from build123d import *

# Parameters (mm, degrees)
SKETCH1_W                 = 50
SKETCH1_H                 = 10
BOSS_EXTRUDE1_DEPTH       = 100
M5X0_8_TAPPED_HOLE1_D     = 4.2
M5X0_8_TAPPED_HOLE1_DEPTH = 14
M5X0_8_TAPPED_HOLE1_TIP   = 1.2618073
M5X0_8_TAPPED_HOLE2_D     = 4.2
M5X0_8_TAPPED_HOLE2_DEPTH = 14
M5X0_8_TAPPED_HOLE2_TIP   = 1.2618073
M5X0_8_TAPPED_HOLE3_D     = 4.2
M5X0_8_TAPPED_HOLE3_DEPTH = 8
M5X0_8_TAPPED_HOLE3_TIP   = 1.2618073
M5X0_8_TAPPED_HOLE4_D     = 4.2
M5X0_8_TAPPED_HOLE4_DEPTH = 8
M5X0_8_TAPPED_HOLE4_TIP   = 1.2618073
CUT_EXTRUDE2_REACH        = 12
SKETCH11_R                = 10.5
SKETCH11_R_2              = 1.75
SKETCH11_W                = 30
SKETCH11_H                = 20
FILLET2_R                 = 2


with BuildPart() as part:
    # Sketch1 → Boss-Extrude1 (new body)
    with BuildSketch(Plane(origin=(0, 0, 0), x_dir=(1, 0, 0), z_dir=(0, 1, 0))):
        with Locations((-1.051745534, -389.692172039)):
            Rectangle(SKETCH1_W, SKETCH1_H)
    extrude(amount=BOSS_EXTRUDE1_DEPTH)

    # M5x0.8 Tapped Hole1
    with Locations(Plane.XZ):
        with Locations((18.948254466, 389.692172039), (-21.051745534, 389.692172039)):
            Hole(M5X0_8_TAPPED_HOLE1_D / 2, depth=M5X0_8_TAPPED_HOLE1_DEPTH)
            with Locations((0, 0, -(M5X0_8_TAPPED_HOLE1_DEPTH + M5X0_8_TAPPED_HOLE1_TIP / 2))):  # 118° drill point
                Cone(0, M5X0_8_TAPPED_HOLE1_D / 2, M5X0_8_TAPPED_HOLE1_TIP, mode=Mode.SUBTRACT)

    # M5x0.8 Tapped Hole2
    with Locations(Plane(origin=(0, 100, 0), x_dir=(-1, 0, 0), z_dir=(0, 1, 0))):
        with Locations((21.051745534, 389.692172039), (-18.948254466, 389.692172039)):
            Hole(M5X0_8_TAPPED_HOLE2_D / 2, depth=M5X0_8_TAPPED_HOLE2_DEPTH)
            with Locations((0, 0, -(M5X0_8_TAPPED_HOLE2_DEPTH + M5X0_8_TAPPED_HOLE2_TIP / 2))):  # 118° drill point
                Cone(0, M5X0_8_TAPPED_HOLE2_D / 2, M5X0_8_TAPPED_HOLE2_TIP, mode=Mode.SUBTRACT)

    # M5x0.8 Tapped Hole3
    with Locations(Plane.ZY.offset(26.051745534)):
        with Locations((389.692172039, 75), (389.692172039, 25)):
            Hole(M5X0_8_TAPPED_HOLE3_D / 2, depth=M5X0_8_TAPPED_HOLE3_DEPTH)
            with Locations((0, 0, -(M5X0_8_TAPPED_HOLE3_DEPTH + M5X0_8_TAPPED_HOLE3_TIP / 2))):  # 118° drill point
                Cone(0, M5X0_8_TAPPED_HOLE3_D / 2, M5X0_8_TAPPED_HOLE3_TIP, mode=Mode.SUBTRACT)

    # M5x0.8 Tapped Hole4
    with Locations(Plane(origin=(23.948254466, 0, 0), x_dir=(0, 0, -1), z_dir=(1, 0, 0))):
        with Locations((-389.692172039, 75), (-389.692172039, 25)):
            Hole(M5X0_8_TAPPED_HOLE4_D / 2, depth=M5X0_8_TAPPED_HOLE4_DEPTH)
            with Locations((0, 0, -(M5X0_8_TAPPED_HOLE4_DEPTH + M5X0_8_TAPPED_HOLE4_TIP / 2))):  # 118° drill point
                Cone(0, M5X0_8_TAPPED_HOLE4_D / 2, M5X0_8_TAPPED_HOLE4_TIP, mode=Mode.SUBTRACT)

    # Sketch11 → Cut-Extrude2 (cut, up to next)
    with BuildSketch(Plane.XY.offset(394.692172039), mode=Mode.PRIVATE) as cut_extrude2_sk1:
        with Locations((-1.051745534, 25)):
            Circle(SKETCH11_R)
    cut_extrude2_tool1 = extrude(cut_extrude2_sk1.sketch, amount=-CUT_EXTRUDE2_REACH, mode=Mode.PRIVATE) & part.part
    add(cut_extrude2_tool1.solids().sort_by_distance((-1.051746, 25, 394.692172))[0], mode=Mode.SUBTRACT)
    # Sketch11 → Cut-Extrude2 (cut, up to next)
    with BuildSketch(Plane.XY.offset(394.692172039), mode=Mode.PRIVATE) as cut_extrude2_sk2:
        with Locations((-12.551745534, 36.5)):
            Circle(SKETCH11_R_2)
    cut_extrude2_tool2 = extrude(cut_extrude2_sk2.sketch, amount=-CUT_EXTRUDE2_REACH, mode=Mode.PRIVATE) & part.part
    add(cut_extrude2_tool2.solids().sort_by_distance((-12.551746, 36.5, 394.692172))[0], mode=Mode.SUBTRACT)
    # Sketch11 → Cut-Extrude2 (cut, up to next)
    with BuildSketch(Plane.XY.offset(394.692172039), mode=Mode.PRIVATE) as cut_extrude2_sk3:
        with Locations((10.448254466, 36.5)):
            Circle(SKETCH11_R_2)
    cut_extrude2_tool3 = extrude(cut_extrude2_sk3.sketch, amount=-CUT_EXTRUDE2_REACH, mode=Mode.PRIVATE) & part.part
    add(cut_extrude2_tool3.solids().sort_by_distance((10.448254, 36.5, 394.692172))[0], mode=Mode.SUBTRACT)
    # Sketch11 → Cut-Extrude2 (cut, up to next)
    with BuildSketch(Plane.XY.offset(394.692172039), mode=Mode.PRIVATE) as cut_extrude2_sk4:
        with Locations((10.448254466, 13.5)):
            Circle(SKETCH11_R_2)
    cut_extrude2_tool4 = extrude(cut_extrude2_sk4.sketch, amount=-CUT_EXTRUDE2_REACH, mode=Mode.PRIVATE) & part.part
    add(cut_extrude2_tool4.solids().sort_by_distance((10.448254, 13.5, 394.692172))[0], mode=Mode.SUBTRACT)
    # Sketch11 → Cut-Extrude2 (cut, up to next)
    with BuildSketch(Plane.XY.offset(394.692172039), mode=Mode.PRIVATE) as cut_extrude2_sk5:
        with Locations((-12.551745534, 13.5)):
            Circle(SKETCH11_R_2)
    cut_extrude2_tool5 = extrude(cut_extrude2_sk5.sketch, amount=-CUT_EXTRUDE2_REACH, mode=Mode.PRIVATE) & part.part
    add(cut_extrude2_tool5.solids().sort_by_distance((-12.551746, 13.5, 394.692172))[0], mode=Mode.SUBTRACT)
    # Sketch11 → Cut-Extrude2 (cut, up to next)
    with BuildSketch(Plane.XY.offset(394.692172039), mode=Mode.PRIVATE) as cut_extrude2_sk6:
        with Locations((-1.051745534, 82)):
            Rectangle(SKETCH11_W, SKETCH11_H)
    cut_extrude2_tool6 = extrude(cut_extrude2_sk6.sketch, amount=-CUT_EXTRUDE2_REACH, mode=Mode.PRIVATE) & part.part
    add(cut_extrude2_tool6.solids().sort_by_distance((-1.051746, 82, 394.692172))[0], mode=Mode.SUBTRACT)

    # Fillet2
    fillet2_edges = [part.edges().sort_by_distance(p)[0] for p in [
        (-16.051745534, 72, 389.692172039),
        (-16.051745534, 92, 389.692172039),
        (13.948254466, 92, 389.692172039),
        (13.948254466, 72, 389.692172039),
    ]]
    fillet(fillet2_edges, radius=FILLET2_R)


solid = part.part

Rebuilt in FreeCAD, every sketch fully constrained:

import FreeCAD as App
import Part
import Sketcher

V = App.Vector


def edges_at(feature, points):
    """Names of the edges that pass closest to the given points."""
    edges = feature.Shape.Edges
    near = lambda p: min(range(len(edges)), key=lambda i: edges[i].distToShape(Part.Vertex(*p))[0])
    return sorted({f"Edge{near(p) + 1}" for p in points})

doc = App.newDocument("Part")
body = doc.addObject("PartDesign::Body", "Body")

sketch1 = body.newObject("Sketcher::SketchObject", "Sketch")
sketch1.AttachmentSupport = (doc.getObject("XZ_Plane"), [""])
sketch1.MapMode = "FlatFace"
sketch1.addGeometry([
    Part.LineSegment(V(-26, 385, 0), V(-26, 395, 0)),
    Part.LineSegment(V(-26, 395, 0), V(24, 395, 0)),
    Part.LineSegment(V(24, 395, 0), V(24, 385, 0)),
    Part.LineSegment(V(24, 385, 0), V(-26, 385, 0)),
], False)
sketch1.addConstraint([
    Sketcher.Constraint("Coincident", 0, 2, 1, 1),
    Sketcher.Constraint("Coincident", 1, 2, 2, 1),
    Sketcher.Constraint("Coincident", 2, 2, 3, 1),
    Sketcher.Constraint("Coincident", 3, 2, 0, 1),
    Sketcher.Constraint("Vertical", 0),
    Sketcher.Constraint("Horizontal", 1),
    Sketcher.Constraint("Vertical", 2),
    Sketcher.Constraint("Horizontal", 3),
    Sketcher.Constraint("DistanceX", 1, 1, 1, 2, 50.0),
    Sketcher.Constraint("DistanceY", 0, 1, 0, 2, 10.0),
    Sketcher.Constraint("DistanceX", 0, 2, -1, 1, 26.051746),
    Sketcher.Constraint("DistanceY", -1, 1, 0, 2, 394.692172),
])
pad1 = body.newObject("PartDesign::Pad", "Pad")
pad1.Profile = sketch1
pad1.Length = 100
pad1.Reversed = True

sketch2 = body.newObject("Sketcher::SketchObject", "Sketch001")
sketch2.AttachmentSupport = (doc.getObject("XZ_Plane"), [""])
sketch2.MapMode = "FlatFace"
sketch2.addGeometry([
    Part.Circle(V(18.9, 389.7, 0), V(0, 0, 1), 2.1),
    Part.Circle(V(-21.1, 389.7, 0), V(0, 0, 1), 2.1),
], False)
sketch2.addConstraint([
    Sketcher.Constraint("Equal", 0, 1),
    Sketcher.Constraint("Horizontal", 0, 3, 1, 3),
    Sketcher.Constraint("Diameter", 0, 4.2),
    Sketcher.Constraint("DistanceX", 1, 3, 0, 3, 40.0),
    Sketcher.Constraint("DistanceX", -1, 1, 0, 3, 18.948254),
    Sketcher.Constraint("DistanceY", -1, 1, 0, 3, 389.692172),
])
doc.recompute()
hole = body.newObject("PartDesign::Hole", "Hole")
hole.Profile = sketch2
hole.ThreadType = "None"
hole.Diameter = 4.2
hole.DepthType = "Dimension"
hole.Depth = 14
hole.DrillPoint = "Angled"
hole.DrillPointAngle = 118

sketch3 = body.newObject("Sketcher::SketchObject", "Sketch002")
sketch3.AttachmentSupport = (doc.getObject("XZ_Plane"), [""])
sketch3.MapMode = "FlatFace"
sketch3.AttachmentOffset = App.Placement(V(0, 0, -100), App.Rotation())
sketch3.addGeometry([
    Part.Circle(V(-21.1, 389.7, 0), V(0, 0, 1), 2.1),
    Part.Circle(V(18.9, 389.7, 0), V(0, 0, 1), 2.1),
], False)
sketch3.addConstraint([
    Sketcher.Constraint("Equal", 0, 1),
    Sketcher.Constraint("Horizontal", 0, 3, 1, 3),
    Sketcher.Constraint("Diameter", 0, 4.2),
    Sketcher.Constraint("DistanceX", 0, 3, 1, 3, 40.0),
    Sketcher.Constraint("DistanceX", 0, 3, -1, 1, 21.051746),
    Sketcher.Constraint("DistanceY", -1, 1, 0, 3, 389.692172),
])
doc.recompute()
hole2 = body.newObject("PartDesign::Hole", "Hole001")
hole2.Profile = sketch3
hole2.ThreadType = "None"
hole2.Diameter = 4.2
hole2.DepthType = "Dimension"
hole2.Depth = 14
hole2.DrillPoint = "Angled"
hole2.DrillPointAngle = 118
hole2.Reversed = True

sketch4 = body.newObject("Sketcher::SketchObject", "Sketch003")
sketch4.AttachmentSupport = (doc.getObject("YZ_Plane"), [""])
sketch4.MapMode = "FlatFace"
sketch4.AttachmentOffset = App.Placement(V(0, 0, -26.051746), App.Rotation())
sketch4.addGeometry([
    Part.Circle(V(75, 389.7, 0), V(0, 0, 1), 2.1),
    Part.Circle(V(25, 389.7, 0), V(0, 0, 1), 2.1),
], False)
sketch4.addConstraint([
    Sketcher.Constraint("Equal", 0, 1),
    Sketcher.Constraint("Horizontal", 0, 3, 1, 3),
    Sketcher.Constraint("Diameter", 0, 4.2),
    Sketcher.Constraint("DistanceX", -1, 1, 0, 3, 75.0),
    Sketcher.Constraint("DistanceX", -1, 1, 1, 3, 25.0),
    Sketcher.Constraint("DistanceY", -1, 1, 0, 3, 389.692172),
])
doc.recompute()
hole3 = body.newObject("PartDesign::Hole", "Hole002")
hole3.Profile = sketch4
hole3.ThreadType = "None"
hole3.Diameter = 4.2
hole3.DepthType = "Dimension"
hole3.Depth = 8
hole3.DrillPoint = "Angled"
hole3.DrillPointAngle = 118
hole3.Reversed = True

sketch5 = body.newObject("Sketcher::SketchObject", "Sketch004")
sketch5.AttachmentSupport = (doc.getObject("YZ_Plane"), [""])
sketch5.MapMode = "FlatFace"
sketch5.AttachmentOffset = App.Placement(V(0, 0, 23.948254), App.Rotation())
sketch5.addGeometry([
    Part.Circle(V(75, 389.7, 0), V(0, 0, 1), 2.1),
    Part.Circle(V(25, 389.7, 0), V(0, 0, 1), 2.1),
], False)
sketch5.addConstraint([
    Sketcher.Constraint("Equal", 0, 1),
    Sketcher.Constraint("Horizontal", 0, 3, 1, 3),
    Sketcher.Constraint("Diameter", 0, 4.2),
    Sketcher.Constraint("DistanceX", -1, 1, 0, 3, 75.0),
    Sketcher.Constraint("DistanceX", -1, 1, 1, 3, 25.0),
    Sketcher.Constraint("DistanceY", -1, 1, 0, 3, 389.692172),
])
doc.recompute()
hole4 = body.newObject("PartDesign::Hole", "Hole003")
hole4.Profile = sketch5
hole4.ThreadType = "None"
hole4.Diameter = 4.2
hole4.DepthType = "Dimension"
hole4.Depth = 8
hole4.DrillPoint = "Angled"
hole4.DrillPointAngle = 118

sketch6 = body.newObject("Sketcher::SketchObject", "Sketch005")
sketch6.AttachmentSupport = (doc.getObject("XY_Plane"), [""])
sketch6.MapMode = "FlatFace"
sketch6.AttachmentOffset = App.Placement(V(0, 0, 394.692172), App.Rotation())
sketch6.addGeometry(Part.Circle(V(-1, 25, 0), V(0, 0, 1), 10), False)
sketch6.addConstraint([
    Sketcher.Constraint("Diameter", 0, 21.0),
    Sketcher.Constraint("DistanceY", -1, 1, 0, 3, 25.0),
    Sketcher.Constraint("DistanceX", 0, 3, -1, 1, 1.051746),
])
pocket1 = body.newObject("PartDesign::Pocket", "Pocket")
pocket1.Profile = sketch6
pocket1.Type = "UpToFirst"

sketch7 = body.newObject("Sketcher::SketchObject", "Sketch006")
sketch7.AttachmentSupport = (doc.getObject("XY_Plane"), [""])
sketch7.MapMode = "FlatFace"
sketch7.AttachmentOffset = App.Placement(V(0, 0, 394.692172), App.Rotation())
sketch7.addGeometry(Part.Circle(V(-12.6, 36.5, 0), V(0, 0, 1), 1.8), False)
sketch7.addConstraint([
    Sketcher.Constraint("Diameter", 0, 3.5),
    Sketcher.Constraint("DistanceY", -1, 1, 0, 3, 36.5),
    Sketcher.Constraint("DistanceX", 0, 3, -1, 1, 12.551746),
])
pocket2 = body.newObject("PartDesign::Pocket", "Pocket001")
pocket2.Profile = sketch7
pocket2.Type = "UpToFirst"

sketch8 = body.newObject("Sketcher::SketchObject", "Sketch007")
sketch8.AttachmentSupport = (doc.getObject("XY_Plane"), [""])
sketch8.MapMode = "FlatFace"
sketch8.AttachmentOffset = App.Placement(V(0, 0, 394.692172), App.Rotation())
sketch8.addGeometry(Part.Circle(V(10.4, 36.5, 0), V(0, 0, 1), 1.8), False)
sketch8.addConstraint([
    Sketcher.Constraint("Diameter", 0, 3.5),
    Sketcher.Constraint("DistanceY", -1, 1, 0, 3, 36.5),
    Sketcher.Constraint("DistanceX", -1, 1, 0, 3, 10.448254),
])
pocket3 = body.newObject("PartDesign::Pocket", "Pocket002")
pocket3.Profile = sketch8
pocket3.Type = "UpToFirst"

sketch9 = body.newObject("Sketcher::SketchObject", "Sketch008")
sketch9.AttachmentSupport = (doc.getObject("XY_Plane"), [""])
sketch9.MapMode = "FlatFace"
sketch9.AttachmentOffset = App.Placement(V(0, 0, 394.692172), App.Rotation())
sketch9.addGeometry(Part.Circle(V(10.4, 13.5, 0), V(0, 0, 1), 1.8), False)
sketch9.addConstraint([
    Sketcher.Constraint("Diameter", 0, 3.5),
    Sketcher.Constraint("DistanceY", -1, 1, 0, 3, 13.5),
    Sketcher.Constraint("DistanceX", -1, 1, 0, 3, 10.448254),
])
pocket4 = body.newObject("PartDesign::Pocket", "Pocket003")
pocket4.Profile = sketch9
pocket4.Type = "UpToFirst"

sketch10 = body.newObject("Sketcher::SketchObject", "Sketch009")
sketch10.AttachmentSupport = (doc.getObject("XY_Plane"), [""])
sketch10.MapMode = "FlatFace"
sketch10.AttachmentOffset = App.Placement(V(0, 0, 394.692172), App.Rotation())
sketch10.addGeometry(Part.Circle(V(-12.6, 13.5, 0), V(0, 0, 1), 1.8), False)
sketch10.addConstraint([
    Sketcher.Constraint("Diameter", 0, 3.5),
    Sketcher.Constraint("DistanceY", -1, 1, 0, 3, 13.5),
    Sketcher.Constraint("DistanceX", 0, 3, -1, 1, 12.551746),
])
pocket5 = body.newObject("PartDesign::Pocket", "Pocket004")
pocket5.Profile = sketch10
pocket5.Type = "UpToFirst"

sketch11 = body.newObject("Sketcher::SketchObject", "Sketch010")
sketch11.AttachmentSupport = (doc.getObject("XY_Plane"), [""])
sketch11.MapMode = "FlatFace"
sketch11.AttachmentOffset = App.Placement(V(0, 0, 394.692172), App.Rotation())
sketch11.addGeometry([
    Part.LineSegment(V(-16, 92, 0), V(-16, 72, 0)),
    Part.LineSegment(V(-16, 72, 0), V(14, 72, 0)),
    Part.LineSegment(V(14, 72, 0), V(14, 92, 0)),
    Part.LineSegment(V(14, 92, 0), V(-16, 92, 0)),
], False)
sketch11.addConstraint([
    Sketcher.Constraint("Coincident", 0, 2, 1, 1),
    Sketcher.Constraint("Coincident", 1, 2, 2, 1),
    Sketcher.Constraint("Coincident", 2, 2, 3, 1),
    Sketcher.Constraint("Coincident", 3, 2, 0, 1),
    Sketcher.Constraint("Vertical", 0),
    Sketcher.Constraint("Horizontal", 1),
    Sketcher.Constraint("Vertical", 2),
    Sketcher.Constraint("Horizontal", 3),
    Sketcher.Constraint("DistanceX", 1, 1, 1, 2, 30.0),
    Sketcher.Constraint("DistanceY", 0, 2, 0, 1, 20.0),
    Sketcher.Constraint("DistanceY", -1, 1, 0, 2, 72.0),
    Sketcher.Constraint("DistanceX", 0, 2, -1, 1, 16.051746),
])
pocket6 = body.newObject("PartDesign::Pocket", "Pocket005")
pocket6.Profile = sketch11
pocket6.Type = "UpToFirst"
doc.recompute()

fillet = body.newObject("PartDesign::Fillet", "Fillet")
fillet.Base = (pocket6, edges_at(pocket6, [
    (-16.052, 72, 389.692),
    (-16.052, 92, 389.692),
    (13.948, 92, 389.692),
    (13.948, 72, 389.692),
]))
fillet.Radius = 2

doc.recompute()
